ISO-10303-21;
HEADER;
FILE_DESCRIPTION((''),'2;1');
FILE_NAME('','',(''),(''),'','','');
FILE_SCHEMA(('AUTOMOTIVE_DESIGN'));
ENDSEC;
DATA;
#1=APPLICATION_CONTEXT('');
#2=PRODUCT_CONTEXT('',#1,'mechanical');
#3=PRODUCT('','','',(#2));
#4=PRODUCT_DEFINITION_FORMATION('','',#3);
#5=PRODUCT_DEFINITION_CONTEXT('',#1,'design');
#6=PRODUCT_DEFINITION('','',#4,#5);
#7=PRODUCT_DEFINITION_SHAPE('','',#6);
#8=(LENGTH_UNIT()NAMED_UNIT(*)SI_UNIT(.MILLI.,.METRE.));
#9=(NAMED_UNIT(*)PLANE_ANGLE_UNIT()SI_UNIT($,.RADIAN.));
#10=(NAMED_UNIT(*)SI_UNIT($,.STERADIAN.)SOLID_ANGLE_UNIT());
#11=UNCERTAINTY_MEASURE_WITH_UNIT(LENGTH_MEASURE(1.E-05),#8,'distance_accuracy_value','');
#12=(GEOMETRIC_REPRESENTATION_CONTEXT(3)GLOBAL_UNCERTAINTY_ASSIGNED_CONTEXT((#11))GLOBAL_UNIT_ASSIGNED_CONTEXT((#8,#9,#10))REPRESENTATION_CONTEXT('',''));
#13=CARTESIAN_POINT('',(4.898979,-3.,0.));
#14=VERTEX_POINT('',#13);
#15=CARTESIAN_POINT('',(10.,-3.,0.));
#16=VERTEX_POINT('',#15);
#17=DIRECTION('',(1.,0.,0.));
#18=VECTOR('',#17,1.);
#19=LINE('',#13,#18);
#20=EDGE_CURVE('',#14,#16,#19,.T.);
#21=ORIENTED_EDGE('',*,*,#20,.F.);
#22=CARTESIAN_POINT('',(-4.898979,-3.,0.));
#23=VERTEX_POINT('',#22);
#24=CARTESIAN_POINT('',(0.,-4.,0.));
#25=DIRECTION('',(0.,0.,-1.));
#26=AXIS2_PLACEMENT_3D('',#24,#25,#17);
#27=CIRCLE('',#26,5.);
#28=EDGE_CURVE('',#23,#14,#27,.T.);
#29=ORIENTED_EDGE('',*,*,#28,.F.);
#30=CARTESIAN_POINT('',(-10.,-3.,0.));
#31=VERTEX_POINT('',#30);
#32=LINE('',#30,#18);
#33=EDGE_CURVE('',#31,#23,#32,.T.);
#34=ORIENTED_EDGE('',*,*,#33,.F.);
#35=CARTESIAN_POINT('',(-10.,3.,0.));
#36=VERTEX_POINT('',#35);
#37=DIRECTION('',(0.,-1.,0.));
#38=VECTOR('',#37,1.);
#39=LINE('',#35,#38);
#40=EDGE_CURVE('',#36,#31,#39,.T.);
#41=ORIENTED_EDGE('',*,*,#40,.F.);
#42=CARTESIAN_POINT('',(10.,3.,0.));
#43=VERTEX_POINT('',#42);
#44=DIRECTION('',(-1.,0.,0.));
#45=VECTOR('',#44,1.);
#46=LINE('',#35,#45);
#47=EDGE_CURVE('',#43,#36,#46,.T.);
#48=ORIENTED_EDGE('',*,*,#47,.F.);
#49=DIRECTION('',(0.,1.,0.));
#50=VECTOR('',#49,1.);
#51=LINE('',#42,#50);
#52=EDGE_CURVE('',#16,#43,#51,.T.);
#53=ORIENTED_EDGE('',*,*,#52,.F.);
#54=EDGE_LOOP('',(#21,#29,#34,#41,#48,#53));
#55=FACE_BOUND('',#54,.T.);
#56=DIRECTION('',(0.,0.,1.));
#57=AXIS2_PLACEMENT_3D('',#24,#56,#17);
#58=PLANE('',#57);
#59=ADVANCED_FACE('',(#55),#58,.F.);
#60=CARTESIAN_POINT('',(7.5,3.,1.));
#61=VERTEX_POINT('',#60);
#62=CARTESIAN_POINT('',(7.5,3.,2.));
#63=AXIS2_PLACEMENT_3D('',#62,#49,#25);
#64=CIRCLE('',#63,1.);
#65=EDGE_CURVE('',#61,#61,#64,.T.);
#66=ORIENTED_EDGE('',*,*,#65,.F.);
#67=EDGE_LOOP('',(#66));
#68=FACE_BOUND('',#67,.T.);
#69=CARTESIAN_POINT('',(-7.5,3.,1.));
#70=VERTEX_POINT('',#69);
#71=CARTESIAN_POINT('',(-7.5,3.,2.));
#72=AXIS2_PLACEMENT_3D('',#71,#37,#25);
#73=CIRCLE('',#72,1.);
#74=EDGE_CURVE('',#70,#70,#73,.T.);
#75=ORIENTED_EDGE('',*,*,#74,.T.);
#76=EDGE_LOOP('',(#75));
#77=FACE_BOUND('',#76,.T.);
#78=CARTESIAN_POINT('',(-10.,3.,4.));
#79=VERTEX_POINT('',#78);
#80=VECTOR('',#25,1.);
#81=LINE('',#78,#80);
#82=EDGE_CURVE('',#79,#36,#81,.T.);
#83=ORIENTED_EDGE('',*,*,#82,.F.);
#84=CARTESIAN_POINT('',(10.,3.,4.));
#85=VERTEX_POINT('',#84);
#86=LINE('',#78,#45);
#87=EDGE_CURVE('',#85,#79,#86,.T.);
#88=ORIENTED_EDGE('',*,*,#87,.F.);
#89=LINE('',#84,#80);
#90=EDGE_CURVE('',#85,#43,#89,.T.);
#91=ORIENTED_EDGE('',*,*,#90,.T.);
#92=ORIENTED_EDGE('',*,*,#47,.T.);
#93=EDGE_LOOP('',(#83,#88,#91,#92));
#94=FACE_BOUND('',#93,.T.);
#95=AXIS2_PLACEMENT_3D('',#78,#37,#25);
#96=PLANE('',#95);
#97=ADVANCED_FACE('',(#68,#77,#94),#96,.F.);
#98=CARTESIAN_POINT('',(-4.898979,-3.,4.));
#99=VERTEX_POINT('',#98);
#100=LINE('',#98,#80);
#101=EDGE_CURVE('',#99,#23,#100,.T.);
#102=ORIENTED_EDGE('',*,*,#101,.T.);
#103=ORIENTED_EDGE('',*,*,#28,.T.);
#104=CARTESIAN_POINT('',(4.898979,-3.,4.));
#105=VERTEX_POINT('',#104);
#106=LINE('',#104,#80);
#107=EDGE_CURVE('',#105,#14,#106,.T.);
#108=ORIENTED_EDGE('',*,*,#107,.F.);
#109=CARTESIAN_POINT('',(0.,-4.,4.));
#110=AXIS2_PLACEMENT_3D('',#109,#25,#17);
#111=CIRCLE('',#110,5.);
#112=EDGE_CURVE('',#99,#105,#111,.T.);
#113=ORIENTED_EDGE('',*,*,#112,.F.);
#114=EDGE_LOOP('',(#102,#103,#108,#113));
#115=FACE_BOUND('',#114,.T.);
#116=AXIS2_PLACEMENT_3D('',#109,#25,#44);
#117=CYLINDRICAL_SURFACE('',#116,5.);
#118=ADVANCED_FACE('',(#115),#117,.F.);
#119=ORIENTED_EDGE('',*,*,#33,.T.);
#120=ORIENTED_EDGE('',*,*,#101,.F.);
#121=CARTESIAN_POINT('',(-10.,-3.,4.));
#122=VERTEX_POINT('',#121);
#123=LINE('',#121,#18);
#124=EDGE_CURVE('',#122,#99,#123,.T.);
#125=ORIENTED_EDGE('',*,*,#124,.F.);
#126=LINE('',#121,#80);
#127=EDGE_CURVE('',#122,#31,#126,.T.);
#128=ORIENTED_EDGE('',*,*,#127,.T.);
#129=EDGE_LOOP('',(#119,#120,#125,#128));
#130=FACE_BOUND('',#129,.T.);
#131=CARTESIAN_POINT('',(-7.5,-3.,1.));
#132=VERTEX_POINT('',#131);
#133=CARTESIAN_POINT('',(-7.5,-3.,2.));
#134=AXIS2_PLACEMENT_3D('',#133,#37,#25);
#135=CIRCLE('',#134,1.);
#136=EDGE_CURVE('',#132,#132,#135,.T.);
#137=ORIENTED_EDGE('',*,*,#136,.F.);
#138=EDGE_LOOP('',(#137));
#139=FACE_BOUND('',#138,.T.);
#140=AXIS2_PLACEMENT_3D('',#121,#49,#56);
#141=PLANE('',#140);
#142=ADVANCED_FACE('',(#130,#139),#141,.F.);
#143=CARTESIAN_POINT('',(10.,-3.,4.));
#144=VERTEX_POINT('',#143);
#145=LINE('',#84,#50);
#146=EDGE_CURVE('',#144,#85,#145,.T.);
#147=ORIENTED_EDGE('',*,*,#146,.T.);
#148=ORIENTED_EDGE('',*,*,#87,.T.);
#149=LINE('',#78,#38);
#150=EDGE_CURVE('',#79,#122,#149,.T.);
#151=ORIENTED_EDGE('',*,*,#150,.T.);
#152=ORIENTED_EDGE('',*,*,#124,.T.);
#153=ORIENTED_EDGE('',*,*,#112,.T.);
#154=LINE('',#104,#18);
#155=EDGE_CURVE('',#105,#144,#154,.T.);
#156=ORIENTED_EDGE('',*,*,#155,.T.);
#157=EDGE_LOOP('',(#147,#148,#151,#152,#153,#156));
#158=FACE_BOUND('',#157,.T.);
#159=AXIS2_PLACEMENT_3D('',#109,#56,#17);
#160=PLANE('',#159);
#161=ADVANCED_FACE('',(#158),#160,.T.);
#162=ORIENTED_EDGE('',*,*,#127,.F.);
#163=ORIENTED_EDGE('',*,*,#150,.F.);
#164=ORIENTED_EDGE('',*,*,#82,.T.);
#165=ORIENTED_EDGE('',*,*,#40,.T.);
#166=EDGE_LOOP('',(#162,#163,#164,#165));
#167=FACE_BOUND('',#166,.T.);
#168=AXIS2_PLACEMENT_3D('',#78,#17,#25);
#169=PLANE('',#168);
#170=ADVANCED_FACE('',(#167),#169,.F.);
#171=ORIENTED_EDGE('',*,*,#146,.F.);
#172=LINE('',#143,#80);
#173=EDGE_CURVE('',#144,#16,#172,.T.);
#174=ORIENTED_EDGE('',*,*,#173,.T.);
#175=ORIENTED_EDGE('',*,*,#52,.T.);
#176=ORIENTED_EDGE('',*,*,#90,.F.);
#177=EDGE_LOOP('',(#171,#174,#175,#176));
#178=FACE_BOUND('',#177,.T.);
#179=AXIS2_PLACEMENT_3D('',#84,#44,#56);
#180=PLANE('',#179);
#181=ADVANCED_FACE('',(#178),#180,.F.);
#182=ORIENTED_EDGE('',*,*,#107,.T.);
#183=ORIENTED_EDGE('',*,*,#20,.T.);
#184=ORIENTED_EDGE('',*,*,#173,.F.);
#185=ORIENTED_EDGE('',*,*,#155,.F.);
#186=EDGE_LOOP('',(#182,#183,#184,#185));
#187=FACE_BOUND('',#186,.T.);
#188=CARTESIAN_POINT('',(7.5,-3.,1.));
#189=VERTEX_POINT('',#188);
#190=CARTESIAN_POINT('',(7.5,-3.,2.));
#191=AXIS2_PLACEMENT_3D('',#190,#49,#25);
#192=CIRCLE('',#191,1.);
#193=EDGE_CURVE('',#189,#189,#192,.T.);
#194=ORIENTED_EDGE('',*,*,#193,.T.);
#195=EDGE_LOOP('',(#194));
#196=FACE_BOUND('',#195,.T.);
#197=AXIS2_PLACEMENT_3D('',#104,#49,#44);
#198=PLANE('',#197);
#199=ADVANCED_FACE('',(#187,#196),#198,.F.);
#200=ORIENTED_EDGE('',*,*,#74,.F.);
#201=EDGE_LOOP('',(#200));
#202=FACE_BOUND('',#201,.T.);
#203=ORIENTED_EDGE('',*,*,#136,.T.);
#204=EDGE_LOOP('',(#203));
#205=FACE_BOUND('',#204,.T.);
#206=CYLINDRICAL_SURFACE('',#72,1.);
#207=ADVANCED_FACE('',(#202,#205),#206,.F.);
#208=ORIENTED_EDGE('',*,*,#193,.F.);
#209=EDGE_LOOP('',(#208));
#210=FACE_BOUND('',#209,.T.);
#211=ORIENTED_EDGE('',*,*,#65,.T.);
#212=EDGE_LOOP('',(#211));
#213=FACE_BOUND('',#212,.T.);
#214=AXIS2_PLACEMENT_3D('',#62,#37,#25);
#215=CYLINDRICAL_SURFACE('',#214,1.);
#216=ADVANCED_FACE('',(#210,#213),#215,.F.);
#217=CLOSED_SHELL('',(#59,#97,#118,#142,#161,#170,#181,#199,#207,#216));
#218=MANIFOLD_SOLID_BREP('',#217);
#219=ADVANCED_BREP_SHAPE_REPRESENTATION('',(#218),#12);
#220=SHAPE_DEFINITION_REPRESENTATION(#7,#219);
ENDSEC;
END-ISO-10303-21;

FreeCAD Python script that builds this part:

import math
import FreeCAD as App
import Part
import Sketcher
from FreeCAD import Vector
Q = App.Units.Quantity

doc = App.newDocument("Part")
body = doc.addObject("PartDesign::Body", "Body")

# Sketch on XY plane
sketch1 = body.newObject("Sketcher::SketchObject", "Sketch")
sketch1.AttachmentSupport = (doc.getObject("XY_Plane"), [""])
sketch1.MapMode = "FlatFace"
sketch1.addGeometry([
    Part.LineSegment(Vector(5, -3, 0), Vector(10, -3, 0)),  # 0
    Part.LineSegment(Vector(10, -3, 0), Vector(10, 3, 0)),  # 1
    Part.LineSegment(Vector(10, 3, 0), Vector(-10, 3, 0)),  # 2
    Part.LineSegment(Vector(-10, 3, 0), Vector(-10, -3, 0)),  # 3
    Part.LineSegment(Vector(-10, -3, 0), Vector(-5, -3, 0)),  # 4
    Part.ArcOfCircle(Part.Circle(Vector(0, -4, 0), Vector(0, 0, 1), 5), math.radians(12), math.radians(168)),  # 5
], False)
sketch1.addConstraint([
    Sketcher.Constraint("Coincident", 0, 2, 1, 1),
    Sketcher.Constraint("Coincident", 1, 2, 2, 1),
    Sketcher.Constraint("Coincident", 2, 2, 3, 1),
    Sketcher.Constraint("Coincident", 3, 2, 4, 1),
    Sketcher.Constraint("Coincident", 4, 2, 5, 2),
    Sketcher.Constraint("Coincident", 5, 1, 0, 1),
    Sketcher.Constraint("Horizontal", 0),
    Sketcher.Constraint("Vertical", 1),
    Sketcher.Constraint("Horizontal", 2),
    Sketcher.Constraint("Vertical", 3),
    Sketcher.Constraint("Horizontal", 4),
    Sketcher.Constraint("Symmetric", 0, 2, 2, 2, -1, 1),
    Sketcher.Constraint("Symmetric", 4, 2, 5, 1, -2),
    Sketcher.Constraint("Radius", 5, Q("5 mm")),
    Sketcher.Constraint("DistanceX", 2, 2, 2, 1, Q("20 mm")),
    Sketcher.Constraint("DistanceY", 1, 1, 1, 2, Q("6 mm")),
    Sketcher.Constraint("DistanceY", 5, 3, -1, 1, Q("4 mm")),
])
pad1 = body.newObject("PartDesign::Pad", "Pad")
pad1.Profile = sketch1
pad1.Length = 4

# Sketch on XZ plane
sketch2 = body.newObject("Sketcher::SketchObject", "Sketch001")
sketch2.AttachmentSupport = (doc.getObject("XZ_Plane"), [""])
sketch2.MapMode = "FlatFace"
sketch2.AttachmentOffset = App.Placement(Vector(0, 0, 3), App.Rotation())
sketch2.addGeometry(Part.Circle(Vector(-7.5, 2, 0), Vector(0, 0, 1), 1), False)
sketch2.addConstraint([
    Sketcher.Constraint("Diameter", 0, Q("2 mm")),
    Sketcher.Constraint("DistanceY", -1, 1, 0, 3, Q("2 mm")),
    Sketcher.Constraint("DistanceX", 0, 3, -1, 1, Q("7.5 mm")),
])
pocket1 = body.newObject("PartDesign::Pocket", "Pocket")
pocket1.Profile = sketch2
pocket1.Type = "ThroughAll"
doc.recompute()

mirrored = body.newObject("PartDesign::Mirrored", "Mirrored")
mirrored.Originals = [pocket1]
mirrored.MirrorPlane = (doc.getObject("YZ_Plane"), [""])
body.Tip = mirrored

doc.recompute()
